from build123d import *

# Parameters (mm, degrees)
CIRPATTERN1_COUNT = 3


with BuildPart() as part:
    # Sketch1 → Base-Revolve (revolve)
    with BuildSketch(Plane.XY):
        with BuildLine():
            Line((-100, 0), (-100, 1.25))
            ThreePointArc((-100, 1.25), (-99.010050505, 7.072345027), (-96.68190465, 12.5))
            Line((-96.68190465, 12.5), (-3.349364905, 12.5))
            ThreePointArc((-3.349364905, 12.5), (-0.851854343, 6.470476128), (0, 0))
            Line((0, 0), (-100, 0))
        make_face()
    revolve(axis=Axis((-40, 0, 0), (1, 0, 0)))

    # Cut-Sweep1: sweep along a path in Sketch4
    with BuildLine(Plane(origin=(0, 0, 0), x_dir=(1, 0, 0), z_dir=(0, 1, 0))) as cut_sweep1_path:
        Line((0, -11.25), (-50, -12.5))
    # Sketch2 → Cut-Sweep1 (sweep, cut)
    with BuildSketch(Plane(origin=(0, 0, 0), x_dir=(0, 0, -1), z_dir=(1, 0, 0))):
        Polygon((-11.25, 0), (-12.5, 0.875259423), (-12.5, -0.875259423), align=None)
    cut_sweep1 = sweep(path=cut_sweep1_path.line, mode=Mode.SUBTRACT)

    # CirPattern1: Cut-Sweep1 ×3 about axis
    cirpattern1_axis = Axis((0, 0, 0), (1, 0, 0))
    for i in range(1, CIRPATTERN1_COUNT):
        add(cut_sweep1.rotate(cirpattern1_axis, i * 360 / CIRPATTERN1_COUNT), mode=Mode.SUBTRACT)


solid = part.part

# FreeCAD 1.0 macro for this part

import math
import FreeCAD as App
import Part
import Sketcher
from FreeCAD import Vector
Q = App.Units.Quantity


def add_polygon(sketch, points):
    """Adds a closed chain of lines whose ends are joined by coincident constraints."""
    first, n = sketch.GeometryCount, len(points)
    for a, b in zip(points, points[1:] + points[:1]):
        sketch.addGeometry(Part.LineSegment(App.Vector(*a, 0), App.Vector(*b, 0)), False)
    for i in range(n):
        sketch.addConstraint(Sketcher.Constraint("Coincident", first + i, 2, first + (i + 1) % n, 1))

doc = App.newDocument("Part")
params = doc.addObject("Spreadsheet::Sheet", "Params")
for row, (alias, value) in enumerate([
    ("sketch1_radius", "25 mm"),
    ("sketch1_width", "100 mm"),
    ("sketch1_height", "1.25 mm"),
    ("revolution_angle", "360 deg"),
], start=1):
    params.set(f"A{row}", alias)
    params.set(f"B{row}", "=" + value)
    params.setAlias(f"B{row}", alias)

body = doc.addObject("PartDesign::Body", "Body")

sketch1 = body.newObject("Sketcher::SketchObject", "Sketch")
sketch1.AttachmentSupport = (doc.getObject("XY_Plane"), [""])
sketch1.MapMode = "FlatFace"
sketch1.addGeometry(Part.LineSegment(Vector(-100, 1.2, 0), Vector(-100, 0, 0)), False)
sketch1.addGeometry(Part.LineSegment(Vector(-100, 0, 0), Vector(0, 0, 0)), False)
sketch1.addGeometry(Part.ArcOfCircle(Part.Circle(Vector(-25, 0, 0), Vector(0, 0, 1), 25), math.radians(0), math.radians(30)), False)
sketch1.addGeometry(Part.LineSegment(Vector(-3.3, 12.5, 0), Vector(-96.7, 12.5, 0)), False)
sketch1.addGeometry(Part.ArcOfCircle(Part.Circle(Vector(-75, 0, 0), Vector(0, 0, 1), 25), math.radians(150), math.radians(177)), False)
sketch1.addConstraint(Sketcher.Constraint("Coincident", 0, 2, 1, 1))
sketch1.addConstraint(Sketcher.Constraint("Coincident", 1, 2, 2, 1))
sketch1.addConstraint(Sketcher.Constraint("Coincident", 2, 2, 3, 1))
sketch1.addConstraint(Sketcher.Constraint("Coincident", 3, 2, 4, 1))
sketch1.addConstraint(Sketcher.Constraint("Coincident", 4, 2, 0, 1))
sketch1.addConstraint(Sketcher.Constraint("Vertical", 0))
sketch1.addConstraint(Sketcher.Constraint("Horizontal", 1))
sketch1.addConstraint(Sketcher.Constraint("Horizontal", 3))
sketch1.addConstraint(Sketcher.Constraint("Coincident", 1, 2, -1, 1))
sketch1.addConstraint(Sketcher.Constraint("Equal", 2, 4))
sketch1.addConstraint(Sketcher.Constraint("PointOnObject", 2, 3, -1))
sketch1.addConstraint(Sketcher.Constraint("PointOnObject", 4, 3, -1))
sketch1.addConstraint(Sketcher.Constraint("Radius", 2, Q("25 mm")))
sketch1.addConstraint(Sketcher.Constraint("DistanceX", 1, 1, 1, 2, Q("100 mm")))
sketch1.addConstraint(Sketcher.Constraint("DistanceY", 0, 2, 0, 1, Q("1.25 mm")))
sketch1.addConstraint(Sketcher.Constraint("DistanceY", -1, 1, 2, 2, Q("12.5 mm")))
sketch1.setExpression("Constraints[12]", "Params.sketch1_radius")
sketch1.setExpression("Constraints[13]", "Params.sketch1_width")
sketch1.setExpression("Constraints[14]", "Params.sketch1_height")
revolution = body.newObject("PartDesign::Revolution", "Revolution")
revolution.Profile = sketch1
revolution.ReferenceAxis = (sketch1, ["H_Axis"])
revolution.setExpression("Angle", "Params.revolution_angle")

sketch2 = body.newObject("Sketcher::SketchObject", "Sketch001")
sketch2.AttachmentSupport = (doc.getObject("YZ_Plane"), [""])
sketch2.MapMode = "FlatFace"
add_polygon(sketch2, [(0, 11.2), (0.9, 12.5), (-0.9, 12.5)])
sketch2.addConstraint(Sketcher.Constraint("Horizontal", 1))
sketch2.addConstraint(Sketcher.Constraint("PointOnObject", 2, 2, -2))
sketch2.addConstraint(Sketcher.Constraint("Equal", 0, 2))
sketch2.addConstraint(Sketcher.Constraint("Angle", 0, Q("55 deg")))
sketch2.addConstraint(Sketcher.Constraint("DistanceY", -1, 1, 0, 2, Q("12.5 mm")))
sketch2.addConstraint(Sketcher.Constraint("DistanceY", -1, 1, 2, 2, Q("11.25 mm")))

sketch3 = body.newObject("Sketcher::SketchObject", "Sketch002")
sketch3.Placement = App.Placement(Vector(0.281074, 0, 11.242973), App.Rotation(Vector(-0.999687646, 0, 0.024992191), Vector(0, 0.999999999, 0), Vector(-0.024992191, 0, -0.999687646), "ZXY"))
sketch3.addGeometry(Part.LineSegment(Vector(0, 0, 0), Vector(50, 0, 0)), False)
sketch3.addConstraint(Sketcher.Constraint("Horizontal", 0))
sketch3.addConstraint(Sketcher.Constraint("PointOnObject", 0, 1, -1))
sketch3.addConstraint(Sketcher.Constraint("DistanceX", 0, 1, 0, 2, Q("50.015623 mm")))
sketch3.addConstraint(Sketcher.Constraint("DistanceX", -1, 1, 0, 1, Q("0.281162 mm")))
doc.recompute()

subtractivepipe = body.newObject("PartDesign::SubtractivePipe", "SubtractivePipe")
subtractivepipe.Profile = sketch2
subtractivepipe.Spine = (sketch3, ["Edge1"])
doc.recompute()

polarpattern = body.newObject("PartDesign::PolarPattern", "PolarPattern")
polarpattern.Originals = [subtractivepipe]
polarpattern.Axis = (doc.getObject("X_Axis"), [""])
polarpattern.Angle = 360
polarpattern.Occurrences = 3
body.Tip = polarpattern

doc.recompute()
